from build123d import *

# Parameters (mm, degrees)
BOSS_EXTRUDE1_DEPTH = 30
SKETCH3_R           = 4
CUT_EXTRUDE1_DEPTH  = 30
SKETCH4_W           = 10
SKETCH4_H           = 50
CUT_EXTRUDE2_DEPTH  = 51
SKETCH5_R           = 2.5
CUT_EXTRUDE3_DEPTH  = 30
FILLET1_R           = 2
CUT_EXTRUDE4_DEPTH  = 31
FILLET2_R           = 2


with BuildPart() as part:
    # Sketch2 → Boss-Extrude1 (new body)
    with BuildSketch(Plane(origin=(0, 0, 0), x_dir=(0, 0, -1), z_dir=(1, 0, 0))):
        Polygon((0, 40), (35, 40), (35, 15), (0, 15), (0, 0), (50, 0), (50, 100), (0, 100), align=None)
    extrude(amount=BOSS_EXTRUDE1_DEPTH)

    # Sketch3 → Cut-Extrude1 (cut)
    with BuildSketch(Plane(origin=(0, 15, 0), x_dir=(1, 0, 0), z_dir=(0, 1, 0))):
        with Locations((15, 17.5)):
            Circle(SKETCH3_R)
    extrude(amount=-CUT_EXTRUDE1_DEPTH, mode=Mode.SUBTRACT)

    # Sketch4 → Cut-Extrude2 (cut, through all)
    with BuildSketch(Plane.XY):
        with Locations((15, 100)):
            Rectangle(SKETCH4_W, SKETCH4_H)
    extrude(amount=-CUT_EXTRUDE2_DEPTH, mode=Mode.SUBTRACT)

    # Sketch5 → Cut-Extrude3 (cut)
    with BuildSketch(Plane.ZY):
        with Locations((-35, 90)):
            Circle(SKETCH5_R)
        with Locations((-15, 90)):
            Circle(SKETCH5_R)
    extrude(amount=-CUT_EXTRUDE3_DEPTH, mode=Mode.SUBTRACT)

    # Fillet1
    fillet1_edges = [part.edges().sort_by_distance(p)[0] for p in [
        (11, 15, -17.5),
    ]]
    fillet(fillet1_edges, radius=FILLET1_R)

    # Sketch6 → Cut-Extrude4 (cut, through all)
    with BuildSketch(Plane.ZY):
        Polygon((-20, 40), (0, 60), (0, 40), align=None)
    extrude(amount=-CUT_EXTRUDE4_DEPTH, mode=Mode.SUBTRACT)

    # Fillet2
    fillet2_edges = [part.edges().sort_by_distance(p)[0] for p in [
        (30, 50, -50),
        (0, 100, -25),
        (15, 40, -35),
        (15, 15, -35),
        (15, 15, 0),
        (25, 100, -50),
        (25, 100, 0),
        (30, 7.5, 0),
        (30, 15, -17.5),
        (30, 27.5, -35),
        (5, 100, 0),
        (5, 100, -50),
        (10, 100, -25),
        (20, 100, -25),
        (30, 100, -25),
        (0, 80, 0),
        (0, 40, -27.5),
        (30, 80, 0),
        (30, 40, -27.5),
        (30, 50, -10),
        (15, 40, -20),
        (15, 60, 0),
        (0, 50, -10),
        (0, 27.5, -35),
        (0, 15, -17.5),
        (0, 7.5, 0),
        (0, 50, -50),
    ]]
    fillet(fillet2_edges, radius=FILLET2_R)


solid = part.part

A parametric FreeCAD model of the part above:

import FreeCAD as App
import Part
import Sketcher

V = App.Vector


def edges_at(feature, points):
    """Names of the edges that pass closest to the given points."""
    edges = feature.Shape.Edges
    near = lambda p: min(range(len(edges)), key=lambda i: edges[i].distToShape(Part.Vertex(*p))[0])
    return sorted({f"Edge{near(p) + 1}" for p in points})


def add_polygon(sketch, points):
    """Adds a closed chain of lines whose ends are joined by coincident constraints."""
    first, n = sketch.GeometryCount, len(points)
    for a, b in zip(points, points[1:] + points[:1]):
        sketch.addGeometry(Part.LineSegment(App.Vector(*a, 0), App.Vector(*b, 0)), False)
    for i in range(n):
        sketch.addConstraint(Sketcher.Constraint("Coincident", first + i, 2, first + (i + 1) % n, 1))

doc = App.newDocument("Part")
body = doc.addObject("PartDesign::Body", "Body")

# Sketch on YZ plane
sketch1 = body.newObject("Sketcher::SketchObject", "Sketch")
sketch1.AttachmentSupport = (doc.getObject("YZ_Plane"), [""])
sketch1.MapMode = "FlatFace"
add_polygon(sketch1, [(40, 0), (40, -35), (15, -35), (15, 0), (0, 0), (0, -50), (100, -50), (100, 0)])  # lines 0-7
sketch1.addConstraint(Sketcher.Constraint("Vertical", 0))
sketch1.addConstraint(Sketcher.Constraint("Horizontal", 1))
sketch1.addConstraint(Sketcher.Constraint("Vertical", 2))
sketch1.addConstraint(Sketcher.Constraint("Horizontal", 3))
sketch1.addConstraint(Sketcher.Constraint("Vertical", 4))
sketch1.addConstraint(Sketcher.Constraint("Horizontal", 5))
sketch1.addConstraint(Sketcher.Constraint("Vertical", 6))
sketch1.addConstraint(Sketcher.Constraint("Horizontal", 7))
sketch1.addConstraint(Sketcher.Constraint("Coincident", 3, 2, -1, 1))
sketch1.addConstraint(Sketcher.Constraint("PointOnObject", 6, 2, -1))
sketch1.addConstraint(Sketcher.Constraint("DistanceX", 1, 2, 1, 1, 25.0))
sketch1.addConstraint(Sketcher.Constraint("DistanceX", 3, 2, 3, 1, 15.0))
sketch1.addConstraint(Sketcher.Constraint("DistanceX", 5, 1, 5, 2, 100.0))
sketch1.addConstraint(Sketcher.Constraint("DistanceY", 0, 2, 0, 1, 35.0))
sketch1.addConstraint(Sketcher.Constraint("DistanceY", 4, 2, 4, 1, 50.0))
pad1 = body.newObject("PartDesign::Pad", "Pad")
pad1.Profile = sketch1
pad1.Length = 30

# Sketch on XZ plane
sketch2 = body.newObject("Sketcher::SketchObject", "Sketch001")
sketch2.AttachmentSupport = (doc.getObject("XZ_Plane"), [""])
sketch2.MapMode = "FlatFace"
sketch2.AttachmentOffset = App.Placement(V(0, 0, -15), App.Rotation())
sketch2.addGeometry(Part.Circle(V(15, -17.5, 0), V(0, 0, 1), 4), False)
sketch2.addConstraint(Sketcher.Constraint("Diameter", 0, 8.0))
sketch2.addConstraint(Sketcher.Constraint("DistanceX", -1, 1, 0, 3, 15.0))
sketch2.addConstraint(Sketcher.Constraint("DistanceY", 0, 3, -1, 1, 17.5))
pocket1 = body.newObject("PartDesign::Pocket", "Pocket")
pocket1.Profile = sketch2
pocket1.Length = 30
pocket1.Reversed = True

# Sketch on XY plane
sketch3 = body.newObject("Sketcher::SketchObject", "Sketch002")
sketch3.AttachmentSupport = (doc.getObject("XY_Plane"), [""])
sketch3.MapMode = "FlatFace"
add_polygon(sketch3, [(10, 125), (10, 75), (20, 75), (20, 125)])  # lines 0-3
sketch3.addConstraint(Sketcher.Constraint("Vertical", 0))
sketch3.addConstraint(Sketcher.Constraint("Horizontal", 1))
sketch3.addConstraint(Sketcher.Constraint("Vertical", 2))
sketch3.addConstraint(Sketcher.Constraint("Horizontal", 3))
sketch3.addConstraint(Sketcher.Constraint("DistanceX", 1, 1, 1, 2, 10.0))
sketch3.addConstraint(Sketcher.Constraint("DistanceY", 0, 2, 0, 1, 50.0))
sketch3.addConstraint(Sketcher.Constraint("DistanceX", -1, 1, 0, 2, 10.0))
sketch3.addConstraint(Sketcher.Constraint("DistanceY", -1, 1, 0, 2, 75.0))
pocket2 = body.newObject("PartDesign::Pocket", "Pocket001")
pocket2.Profile = sketch3
pocket2.Type = "ThroughAll"

# Sketch on YZ plane
sketch4 = body.newObject("Sketcher::SketchObject", "Sketch003")
sketch4.AttachmentSupport = (doc.getObject("YZ_Plane"), [""])
sketch4.MapMode = "FlatFace"
sketch4.addGeometry(Part.Circle(V(90, -35, 0), V(0, 0, 1), 2.5), False)
sketch4.addGeometry(Part.Circle(V(90, -15, 0), V(0, 0, 1), 2.5), False)
sketch4.addConstraint(Sketcher.Constraint("Equal", 0, 1))
sketch4.addConstraint(Sketcher.Constraint("Vertical", 0, 3, 1, 3))
sketch4.addConstraint(Sketcher.Constraint("Diameter", 0, 5.0))
sketch4.addConstraint(Sketcher.Constraint("DistanceX", -1, 1, 0, 3, 90.0))
sketch4.addConstraint(Sketcher.Constraint("DistanceY", 0, 3, -1, 1, 35.0))
sketch4.addConstraint(Sketcher.Constraint("DistanceY", 1, 3, -1, 1, 15.0))
pocket3 = body.newObject("PartDesign::Pocket", "Pocket002")
pocket3.Profile = sketch4
pocket3.Length = 30
pocket3.Reversed = True
doc.recompute()

fillet = body.newObject("PartDesign::Fillet", "Fillet")
fillet.Base = (pocket3, edges_at(pocket3, [(11, 15, -17.5)]))
fillet.Radius = 2

# Sketch on YZ plane
sketch5 = body.newObject("Sketcher::SketchObject", "Sketch004")
sketch5.AttachmentSupport = (doc.getObject("YZ_Plane"), [""])
sketch5.MapMode = "FlatFace"
add_polygon(sketch5, [(60, 0), (40, -20), (40, 0)])  # lines 0-2
sketch5.addConstraint(Sketcher.Constraint("Vertical", 1))
sketch5.addConstraint(Sketcher.Constraint("Horizontal", 2))
sketch5.addConstraint(Sketcher.Constraint("PointOnObject", 1, 2, -1))
sketch5.addConstraint(Sketcher.Constraint("Equal", 2, 1))
sketch5.addConstraint(Sketcher.Constraint("DistanceX", 2, 1, 2, 2, 20.0))
sketch5.addConstraint(Sketcher.Constraint("DistanceX", -1, 1, 0, 2, 40.0))
pocket4 = body.newObject("PartDesign::Pocket", "Pocket003")
pocket4.Profile = sketch5
pocket4.Type = "ThroughAll"
pocket4.Reversed = True
doc.recompute()

fillet2 = body.newObject("PartDesign::Fillet", "Fillet001")
fillet2.Base = (pocket4, edges_at(pocket4, [
    (30, 50, -50),
    (0, 100, -25),
    (15, 40, -35),
    (15, 15, -35),
    (15, 15, 0),
    (25, 100, -50),
    (25, 100, 0),
    (30, 7.5, 0),
    (30, 15, -17.5),
    (30, 27.5, -35),
    (5, 100, 0),
    (5, 100, -50),
    (10, 100, -25),
    (20, 100, -25),
    (30, 100, -25),
    (0, 80, 0),
    (0, 40, -27.5),
    (30, 80, 0),
    (30, 40, -27.5),
    (30, 50, -10),
    (15, 40, -20),
    (15, 60, 0),
    (0, 50, -10),
    (0, 27.5, -35),
    (0, 15, -17.5),
    (0, 7.5, 0),
    (0, 50, -50),
]))
fillet2.Radius = 2

doc.recompute()
